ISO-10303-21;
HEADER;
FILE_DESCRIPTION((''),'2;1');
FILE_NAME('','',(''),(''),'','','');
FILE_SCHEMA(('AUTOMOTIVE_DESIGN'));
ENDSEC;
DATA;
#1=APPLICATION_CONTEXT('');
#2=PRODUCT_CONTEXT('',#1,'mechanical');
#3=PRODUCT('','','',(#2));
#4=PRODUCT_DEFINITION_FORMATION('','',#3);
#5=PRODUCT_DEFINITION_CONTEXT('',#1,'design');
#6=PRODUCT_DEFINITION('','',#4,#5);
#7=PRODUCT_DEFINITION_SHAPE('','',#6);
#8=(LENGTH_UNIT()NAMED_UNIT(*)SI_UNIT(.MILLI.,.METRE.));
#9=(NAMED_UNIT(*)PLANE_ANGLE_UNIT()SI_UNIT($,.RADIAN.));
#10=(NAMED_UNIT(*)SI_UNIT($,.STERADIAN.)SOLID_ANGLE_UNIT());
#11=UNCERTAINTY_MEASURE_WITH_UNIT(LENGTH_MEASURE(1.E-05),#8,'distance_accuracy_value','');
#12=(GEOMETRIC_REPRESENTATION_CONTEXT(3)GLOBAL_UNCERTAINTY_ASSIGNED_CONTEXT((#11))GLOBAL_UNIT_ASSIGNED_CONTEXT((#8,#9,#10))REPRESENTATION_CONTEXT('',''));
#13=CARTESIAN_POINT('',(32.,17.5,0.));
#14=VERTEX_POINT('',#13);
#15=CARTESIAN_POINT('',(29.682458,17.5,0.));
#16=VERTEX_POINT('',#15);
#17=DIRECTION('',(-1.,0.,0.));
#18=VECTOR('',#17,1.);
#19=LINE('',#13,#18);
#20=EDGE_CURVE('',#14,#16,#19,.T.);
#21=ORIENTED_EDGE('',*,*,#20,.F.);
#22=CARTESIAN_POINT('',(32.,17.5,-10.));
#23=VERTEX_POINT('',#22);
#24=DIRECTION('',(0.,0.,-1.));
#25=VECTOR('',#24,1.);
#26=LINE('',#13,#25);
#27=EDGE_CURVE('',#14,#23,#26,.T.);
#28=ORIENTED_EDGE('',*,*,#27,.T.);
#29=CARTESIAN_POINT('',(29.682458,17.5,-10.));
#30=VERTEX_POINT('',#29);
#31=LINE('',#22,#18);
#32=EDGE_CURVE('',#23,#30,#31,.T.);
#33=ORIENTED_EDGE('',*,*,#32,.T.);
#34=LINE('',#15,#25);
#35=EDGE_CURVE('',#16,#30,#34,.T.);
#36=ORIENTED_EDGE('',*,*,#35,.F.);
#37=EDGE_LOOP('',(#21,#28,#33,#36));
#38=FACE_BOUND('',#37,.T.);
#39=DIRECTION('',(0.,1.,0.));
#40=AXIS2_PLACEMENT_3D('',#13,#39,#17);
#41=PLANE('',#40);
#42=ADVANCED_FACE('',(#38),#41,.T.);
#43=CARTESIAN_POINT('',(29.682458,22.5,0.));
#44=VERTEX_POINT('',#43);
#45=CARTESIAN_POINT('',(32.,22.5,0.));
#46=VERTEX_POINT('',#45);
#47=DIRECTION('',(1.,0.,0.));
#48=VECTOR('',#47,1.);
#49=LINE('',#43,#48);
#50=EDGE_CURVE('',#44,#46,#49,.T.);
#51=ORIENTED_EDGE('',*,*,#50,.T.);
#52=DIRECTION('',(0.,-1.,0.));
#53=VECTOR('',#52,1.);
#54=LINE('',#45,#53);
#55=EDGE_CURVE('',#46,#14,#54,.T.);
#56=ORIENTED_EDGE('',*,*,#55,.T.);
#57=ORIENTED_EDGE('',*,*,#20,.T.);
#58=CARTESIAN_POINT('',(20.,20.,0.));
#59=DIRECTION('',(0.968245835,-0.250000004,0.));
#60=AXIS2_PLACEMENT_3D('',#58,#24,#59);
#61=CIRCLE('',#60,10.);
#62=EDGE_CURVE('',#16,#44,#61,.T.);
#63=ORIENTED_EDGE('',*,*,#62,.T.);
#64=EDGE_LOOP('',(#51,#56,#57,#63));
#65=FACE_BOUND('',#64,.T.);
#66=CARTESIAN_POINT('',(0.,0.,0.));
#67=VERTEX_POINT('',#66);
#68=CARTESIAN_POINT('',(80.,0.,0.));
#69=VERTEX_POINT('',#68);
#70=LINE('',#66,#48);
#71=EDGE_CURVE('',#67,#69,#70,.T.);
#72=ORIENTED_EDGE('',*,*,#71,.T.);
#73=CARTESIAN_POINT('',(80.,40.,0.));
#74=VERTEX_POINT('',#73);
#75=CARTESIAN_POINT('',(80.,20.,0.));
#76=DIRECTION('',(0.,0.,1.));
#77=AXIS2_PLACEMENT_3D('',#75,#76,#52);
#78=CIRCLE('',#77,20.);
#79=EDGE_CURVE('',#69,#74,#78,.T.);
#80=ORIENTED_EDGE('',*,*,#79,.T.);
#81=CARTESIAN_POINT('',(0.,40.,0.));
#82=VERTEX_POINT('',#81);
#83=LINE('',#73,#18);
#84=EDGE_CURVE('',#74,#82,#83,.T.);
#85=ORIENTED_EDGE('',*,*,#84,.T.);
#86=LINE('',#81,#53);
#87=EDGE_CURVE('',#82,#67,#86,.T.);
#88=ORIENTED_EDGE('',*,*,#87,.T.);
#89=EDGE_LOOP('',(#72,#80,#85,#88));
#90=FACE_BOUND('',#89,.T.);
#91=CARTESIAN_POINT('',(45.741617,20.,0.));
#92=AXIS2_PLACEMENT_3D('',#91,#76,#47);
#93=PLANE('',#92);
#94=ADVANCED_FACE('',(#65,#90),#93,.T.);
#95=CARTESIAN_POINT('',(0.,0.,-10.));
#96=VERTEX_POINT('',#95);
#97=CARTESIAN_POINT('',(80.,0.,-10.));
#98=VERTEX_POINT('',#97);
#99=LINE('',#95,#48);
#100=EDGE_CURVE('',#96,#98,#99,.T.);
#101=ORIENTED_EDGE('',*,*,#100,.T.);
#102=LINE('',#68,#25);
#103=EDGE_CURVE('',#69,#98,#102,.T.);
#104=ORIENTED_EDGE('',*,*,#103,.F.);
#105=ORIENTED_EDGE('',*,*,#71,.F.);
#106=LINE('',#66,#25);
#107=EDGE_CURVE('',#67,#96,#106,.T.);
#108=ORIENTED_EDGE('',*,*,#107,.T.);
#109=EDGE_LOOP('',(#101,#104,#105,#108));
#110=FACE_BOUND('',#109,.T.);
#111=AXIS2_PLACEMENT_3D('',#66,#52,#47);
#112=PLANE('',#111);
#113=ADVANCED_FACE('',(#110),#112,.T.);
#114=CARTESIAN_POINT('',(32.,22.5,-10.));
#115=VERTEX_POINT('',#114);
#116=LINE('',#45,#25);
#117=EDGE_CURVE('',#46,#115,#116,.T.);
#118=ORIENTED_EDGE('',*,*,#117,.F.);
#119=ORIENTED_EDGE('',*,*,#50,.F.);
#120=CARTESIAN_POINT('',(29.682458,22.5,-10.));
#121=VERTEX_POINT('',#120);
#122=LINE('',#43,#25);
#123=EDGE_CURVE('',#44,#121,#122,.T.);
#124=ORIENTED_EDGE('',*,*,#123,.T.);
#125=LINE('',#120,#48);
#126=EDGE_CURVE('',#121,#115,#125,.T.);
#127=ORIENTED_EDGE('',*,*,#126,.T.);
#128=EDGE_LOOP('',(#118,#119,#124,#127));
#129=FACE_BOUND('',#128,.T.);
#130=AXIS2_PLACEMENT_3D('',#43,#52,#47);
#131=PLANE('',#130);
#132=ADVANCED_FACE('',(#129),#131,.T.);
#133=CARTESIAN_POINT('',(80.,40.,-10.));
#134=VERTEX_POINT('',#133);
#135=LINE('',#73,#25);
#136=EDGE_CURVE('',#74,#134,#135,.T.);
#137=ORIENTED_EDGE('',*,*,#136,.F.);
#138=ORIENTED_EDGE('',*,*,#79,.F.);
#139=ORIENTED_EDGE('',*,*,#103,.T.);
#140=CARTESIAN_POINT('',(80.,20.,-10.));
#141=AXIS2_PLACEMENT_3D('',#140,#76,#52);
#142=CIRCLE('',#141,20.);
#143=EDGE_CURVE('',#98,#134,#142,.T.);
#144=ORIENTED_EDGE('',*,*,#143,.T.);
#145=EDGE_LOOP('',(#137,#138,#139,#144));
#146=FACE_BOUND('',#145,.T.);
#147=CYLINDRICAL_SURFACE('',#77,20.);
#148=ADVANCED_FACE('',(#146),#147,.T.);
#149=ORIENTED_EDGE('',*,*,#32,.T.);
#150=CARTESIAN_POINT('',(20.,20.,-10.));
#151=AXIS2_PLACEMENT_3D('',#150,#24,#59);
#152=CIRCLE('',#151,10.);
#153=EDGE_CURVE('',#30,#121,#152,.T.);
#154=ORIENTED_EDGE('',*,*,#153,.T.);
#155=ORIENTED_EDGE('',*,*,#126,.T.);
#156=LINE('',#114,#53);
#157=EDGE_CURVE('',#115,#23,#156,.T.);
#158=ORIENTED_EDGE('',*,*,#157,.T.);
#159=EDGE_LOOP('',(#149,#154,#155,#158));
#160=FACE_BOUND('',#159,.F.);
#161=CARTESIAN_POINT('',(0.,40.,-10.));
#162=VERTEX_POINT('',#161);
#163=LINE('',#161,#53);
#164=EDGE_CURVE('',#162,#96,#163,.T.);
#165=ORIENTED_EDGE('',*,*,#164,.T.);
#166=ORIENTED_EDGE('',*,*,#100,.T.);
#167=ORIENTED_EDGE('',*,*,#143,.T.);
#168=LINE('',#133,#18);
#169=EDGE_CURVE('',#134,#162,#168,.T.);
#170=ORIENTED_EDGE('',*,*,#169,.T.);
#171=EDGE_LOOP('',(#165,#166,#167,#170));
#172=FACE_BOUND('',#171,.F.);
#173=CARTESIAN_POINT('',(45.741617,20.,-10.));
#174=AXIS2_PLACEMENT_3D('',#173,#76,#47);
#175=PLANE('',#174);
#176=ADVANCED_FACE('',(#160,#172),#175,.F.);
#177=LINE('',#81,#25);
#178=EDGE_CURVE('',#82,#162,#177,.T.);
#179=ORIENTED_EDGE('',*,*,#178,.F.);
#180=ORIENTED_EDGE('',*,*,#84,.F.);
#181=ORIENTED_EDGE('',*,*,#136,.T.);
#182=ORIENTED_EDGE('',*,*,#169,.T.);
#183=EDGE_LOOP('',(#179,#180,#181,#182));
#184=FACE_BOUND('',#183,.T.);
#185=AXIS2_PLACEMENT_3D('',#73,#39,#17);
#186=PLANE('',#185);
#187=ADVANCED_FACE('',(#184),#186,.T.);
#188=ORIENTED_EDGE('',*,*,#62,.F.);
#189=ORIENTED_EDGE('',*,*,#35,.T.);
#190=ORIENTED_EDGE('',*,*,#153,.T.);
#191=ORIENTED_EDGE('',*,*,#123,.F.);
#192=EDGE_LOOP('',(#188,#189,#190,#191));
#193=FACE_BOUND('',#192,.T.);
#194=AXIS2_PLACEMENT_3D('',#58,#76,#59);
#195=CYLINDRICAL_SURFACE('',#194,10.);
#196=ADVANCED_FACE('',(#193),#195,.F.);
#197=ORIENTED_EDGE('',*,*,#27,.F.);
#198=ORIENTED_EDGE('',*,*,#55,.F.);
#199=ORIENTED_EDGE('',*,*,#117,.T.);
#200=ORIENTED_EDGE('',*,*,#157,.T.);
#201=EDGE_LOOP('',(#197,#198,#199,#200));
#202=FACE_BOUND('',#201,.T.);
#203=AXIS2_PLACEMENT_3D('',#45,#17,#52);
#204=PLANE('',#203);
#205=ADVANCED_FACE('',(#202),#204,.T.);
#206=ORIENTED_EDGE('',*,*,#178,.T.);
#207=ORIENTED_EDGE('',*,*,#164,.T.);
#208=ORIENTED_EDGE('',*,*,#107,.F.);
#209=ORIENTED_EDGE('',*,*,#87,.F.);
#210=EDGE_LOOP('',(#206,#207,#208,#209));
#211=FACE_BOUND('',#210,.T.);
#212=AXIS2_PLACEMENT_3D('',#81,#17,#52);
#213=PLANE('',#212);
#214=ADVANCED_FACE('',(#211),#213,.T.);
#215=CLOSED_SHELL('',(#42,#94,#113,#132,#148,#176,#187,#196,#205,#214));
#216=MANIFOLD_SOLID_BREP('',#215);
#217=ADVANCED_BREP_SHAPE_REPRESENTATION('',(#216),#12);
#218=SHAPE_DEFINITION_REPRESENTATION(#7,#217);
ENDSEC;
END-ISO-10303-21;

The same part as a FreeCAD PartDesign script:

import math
import FreeCAD as App
import Part
import Sketcher

V = App.Vector
Q = App.Units.Quantity

doc = App.newDocument("Part")
body = doc.addObject("PartDesign::Body", "Body")

# Sketch on XY plane
sketch1 = body.newObject("Sketcher::SketchObject", "Sketch")
sketch1.AttachmentSupport = (doc.getObject("XY_Plane"), [""])
sketch1.MapMode = "FlatFace"
sketch1.addGeometry([
    Part.LineSegment(V(0, 40, 0), V(0, 0, 0)),  # 0
    Part.LineSegment(V(0, 0, 0), V(80, 0, 0)),  # 1
    Part.ArcOfCircle(Part.Circle(V(80, 20, 0), V(0, 0, 1), 20), math.radians(-90), math.radians(90)),  # 2
    Part.LineSegment(V(80, 40, 0), V(0, 40, 0)),  # 3
    Part.LineSegment(V(32, 17.5, 0), V(29.7, 17.5, 0)),  # 4
    Part.ArcOfCircle(Part.Circle(V(20, 20, 0), V(0, 0, 1), 10), math.radians(14), math.radians(346)),  # 5
    Part.LineSegment(V(29.7, 22.5, 0), V(32, 22.5, 0)),  # 6
    Part.LineSegment(V(32, 22.5, 0), V(32, 17.5, 0)),  # 7
], False)
sketch1.addConstraint([
    Sketcher.Constraint("Coincident", 0, 2, 1, 1),
    Sketcher.Constraint("Tangent", 1, 2, 2, 1),
    Sketcher.Constraint("Tangent", 2, 2, 3, 1),
    Sketcher.Constraint("Coincident", 3, 2, 0, 1),
    Sketcher.Constraint("Coincident", 4, 2, 5, 2),
    Sketcher.Constraint("Coincident", 5, 1, 6, 1),
    Sketcher.Constraint("Coincident", 6, 2, 7, 1),
    Sketcher.Constraint("Coincident", 7, 2, 4, 1),
    Sketcher.Constraint("Vertical", 0),
    Sketcher.Constraint("Horizontal", 1),
    Sketcher.Constraint("Horizontal", 3),
    Sketcher.Constraint("Horizontal", 4),
    Sketcher.Constraint("Horizontal", 6),
    Sketcher.Constraint("Vertical", 7),
    Sketcher.Constraint("Coincident", 0, 2, -1, 1),
    Sketcher.Constraint("Horizontal", 2, 3, 5, 3),
    Sketcher.Constraint("Vertical", 4, 2, 5, 1),
    Sketcher.Constraint("Radius", 2, Q("20 mm")),
    Sketcher.Constraint("Radius", 5, Q("10 mm")),
    Sketcher.Constraint("DistanceX", 1, 1, 1, 2, Q("80 mm")),
    Sketcher.Constraint("DistanceY", 7, 2, 7, 1, Q("5 mm")),
    Sketcher.Constraint("DistanceX", -1, 1, 5, 3, Q("20 mm")),
    Sketcher.Constraint("DistanceX", -1, 1, 6, 2, Q("32 mm")),
])
pad1 = body.newObject("PartDesign::Pad", "Pad")
pad1.Profile = sketch1
pad1.Length = 10
pad1.Reversed = True

doc.recompute()
